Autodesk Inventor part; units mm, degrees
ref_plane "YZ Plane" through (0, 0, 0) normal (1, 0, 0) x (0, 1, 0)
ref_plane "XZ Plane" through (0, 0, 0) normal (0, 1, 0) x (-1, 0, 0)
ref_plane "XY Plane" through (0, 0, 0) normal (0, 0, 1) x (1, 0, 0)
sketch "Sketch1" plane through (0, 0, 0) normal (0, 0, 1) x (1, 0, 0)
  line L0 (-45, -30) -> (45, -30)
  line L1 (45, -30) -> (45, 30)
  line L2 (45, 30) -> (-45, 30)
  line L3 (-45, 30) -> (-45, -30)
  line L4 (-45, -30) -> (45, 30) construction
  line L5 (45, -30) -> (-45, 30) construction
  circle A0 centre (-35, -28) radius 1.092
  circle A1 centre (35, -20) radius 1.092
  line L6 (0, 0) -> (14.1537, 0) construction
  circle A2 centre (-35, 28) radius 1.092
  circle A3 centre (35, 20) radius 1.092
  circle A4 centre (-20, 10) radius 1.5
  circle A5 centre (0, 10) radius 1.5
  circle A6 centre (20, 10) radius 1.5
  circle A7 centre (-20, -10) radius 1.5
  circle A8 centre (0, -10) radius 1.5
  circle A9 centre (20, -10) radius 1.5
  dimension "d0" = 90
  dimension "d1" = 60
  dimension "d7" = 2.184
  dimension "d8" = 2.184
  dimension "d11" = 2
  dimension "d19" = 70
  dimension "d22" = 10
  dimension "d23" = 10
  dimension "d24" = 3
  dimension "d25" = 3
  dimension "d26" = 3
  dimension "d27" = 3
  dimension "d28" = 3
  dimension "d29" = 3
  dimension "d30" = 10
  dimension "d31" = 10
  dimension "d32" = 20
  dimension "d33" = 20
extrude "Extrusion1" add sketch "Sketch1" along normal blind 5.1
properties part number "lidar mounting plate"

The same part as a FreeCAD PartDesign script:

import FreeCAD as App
import Part
import Sketcher

V = App.Vector
Q = App.Units.Quantity

doc = App.newDocument("Part")
body = doc.addObject("PartDesign::Body", "Body")

# Sketch on XY plane
sketch1 = body.newObject("Sketcher::SketchObject", "Sketch")
sketch1.AttachmentSupport = (doc.getObject("XY_Plane"), [""])
sketch1.MapMode = "FlatFace"
sketch1.addGeometry(Part.LineSegment(V(-45, 30, 0), V(-45, -30, 0)), False)
sketch1.addGeometry(Part.LineSegment(V(-45, -30, 0), V(45, -30, 0)), False)
sketch1.addGeometry(Part.LineSegment(V(45, -30, 0), V(45, 30, 0)), False)
sketch1.addGeometry(Part.LineSegment(V(45, 30, 0), V(-45, 30, 0)), False)
sketch1.addGeometry(Part.Circle(V(-35, -28, 0), V(0, 0, 1), 1.092), False)
sketch1.addGeometry(Part.Circle(V(-20, -10, 0), V(0, 0, 1), 1.5), False)
sketch1.addGeometry(Part.Circle(V(35, -20, 0), V(0, 0, 1), 1.092), False)
sketch1.addGeometry(Part.Circle(V(0, -10, 0), V(0, 0, 1), 1.5), False)
sketch1.addGeometry(Part.Circle(V(20, -10, 0), V(0, 0, 1), 1.5), False)
sketch1.addGeometry(Part.Circle(V(-20, 10, 0), V(0, 0, 1), 1.5), False)
sketch1.addGeometry(Part.Circle(V(-35, 28, 0), V(0, 0, 1), 1.092), False)
sketch1.addGeometry(Part.Circle(V(0, 10, 0), V(0, 0, 1), 1.5), False)
sketch1.addGeometry(Part.Circle(V(20, 10, 0), V(0, 0, 1), 1.5), False)
sketch1.addGeometry(Part.Circle(V(35, 20, 0), V(0, 0, 1), 1.092), False)
sketch1.addConstraint(Sketcher.Constraint("Coincident", 0, 2, 1, 1))
sketch1.addConstraint(Sketcher.Constraint("Coincident", 1, 2, 2, 1))
sketch1.addConstraint(Sketcher.Constraint("Coincident", 2, 2, 3, 1))
sketch1.addConstraint(Sketcher.Constraint("Coincident", 3, 2, 0, 1))
sketch1.addConstraint(Sketcher.Constraint("Vertical", 0))
sketch1.addConstraint(Sketcher.Constraint("Horizontal", 1))
sketch1.addConstraint(Sketcher.Constraint("Vertical", 2))
sketch1.addConstraint(Sketcher.Constraint("Horizontal", 3))
sketch1.addConstraint(Sketcher.Constraint("Equal", 4, 6))
sketch1.addConstraint(Sketcher.Constraint("Equal", 5, 7))
sketch1.addConstraint(Sketcher.Constraint("Equal", 7, 8))
sketch1.addConstraint(Sketcher.Constraint("Equal", 8, 9))
sketch1.addConstraint(Sketcher.Constraint("Equal", 6, 10))
sketch1.addConstraint(Sketcher.Constraint("Equal", 9, 11))
sketch1.addConstraint(Sketcher.Constraint("Equal", 11, 12))
sketch1.addConstraint(Sketcher.Constraint("Equal", 10, 13))
sketch1.addConstraint(Sketcher.Constraint("Symmetric", 8, 3, 9, 3, -1, 1))
sketch1.addConstraint(Sketcher.Constraint("Symmetric", 7, 3, 11, 3, -1, 1))
sketch1.addConstraint(Sketcher.Constraint("Symmetric", 5, 3, 12, 3, -1, 1))
sketch1.addConstraint(Sketcher.Constraint("Symmetric", 0, 2, 2, 2, -1, 1))
sketch1.addConstraint(Sketcher.Constraint("Symmetric", 5, 3, 8, 3, -2))
sketch1.addConstraint(Sketcher.Constraint("Symmetric", 4, 3, 10, 3, -1))
sketch1.addConstraint(Sketcher.Constraint("Symmetric", 6, 3, 13, 3, -1))
sketch1.addConstraint(Sketcher.Constraint("PointOnObject", 7, 3, -2))
sketch1.addConstraint(Sketcher.Constraint("Horizontal", 5, 3, 7, 3))
sketch1.addConstraint(Sketcher.Constraint("Diameter", 5, Q("3 mm")))
sketch1.addConstraint(Sketcher.Constraint("DistanceX", 1, 1, 1, 2, Q("90 mm")))
sketch1.addConstraint(Sketcher.Constraint("DistanceY", 0, 2, 0, 1, Q("60 mm")))
sketch1.addConstraint(Sketcher.Constraint("Diameter", 4, Q("2.184 mm")))
sketch1.addConstraint(Sketcher.Constraint("DistanceX", 5, 3, -1, 1, Q("20 mm")))
sketch1.addConstraint(Sketcher.Constraint("DistanceY", 5, 3, -1, 1, Q("10 mm")))
sketch1.addConstraint(Sketcher.Constraint("DistanceY", 6, 3, -1, 1, Q("20 mm")))
sketch1.addConstraint(Sketcher.Constraint("DistanceX", 4, 3, 6, 3, Q("70 mm")))
sketch1.addConstraint(Sketcher.Constraint("DistanceX", 0, 2, 4, 3, Q("10 mm")))
sketch1.addConstraint(Sketcher.Constraint("DistanceY", 0, 2, 4, 3, Q("2 mm")))
pad1 = body.newObject("PartDesign::Pad", "Pad")
pad1.Profile = sketch1
pad1.Length = 5.1

doc.recompute()
